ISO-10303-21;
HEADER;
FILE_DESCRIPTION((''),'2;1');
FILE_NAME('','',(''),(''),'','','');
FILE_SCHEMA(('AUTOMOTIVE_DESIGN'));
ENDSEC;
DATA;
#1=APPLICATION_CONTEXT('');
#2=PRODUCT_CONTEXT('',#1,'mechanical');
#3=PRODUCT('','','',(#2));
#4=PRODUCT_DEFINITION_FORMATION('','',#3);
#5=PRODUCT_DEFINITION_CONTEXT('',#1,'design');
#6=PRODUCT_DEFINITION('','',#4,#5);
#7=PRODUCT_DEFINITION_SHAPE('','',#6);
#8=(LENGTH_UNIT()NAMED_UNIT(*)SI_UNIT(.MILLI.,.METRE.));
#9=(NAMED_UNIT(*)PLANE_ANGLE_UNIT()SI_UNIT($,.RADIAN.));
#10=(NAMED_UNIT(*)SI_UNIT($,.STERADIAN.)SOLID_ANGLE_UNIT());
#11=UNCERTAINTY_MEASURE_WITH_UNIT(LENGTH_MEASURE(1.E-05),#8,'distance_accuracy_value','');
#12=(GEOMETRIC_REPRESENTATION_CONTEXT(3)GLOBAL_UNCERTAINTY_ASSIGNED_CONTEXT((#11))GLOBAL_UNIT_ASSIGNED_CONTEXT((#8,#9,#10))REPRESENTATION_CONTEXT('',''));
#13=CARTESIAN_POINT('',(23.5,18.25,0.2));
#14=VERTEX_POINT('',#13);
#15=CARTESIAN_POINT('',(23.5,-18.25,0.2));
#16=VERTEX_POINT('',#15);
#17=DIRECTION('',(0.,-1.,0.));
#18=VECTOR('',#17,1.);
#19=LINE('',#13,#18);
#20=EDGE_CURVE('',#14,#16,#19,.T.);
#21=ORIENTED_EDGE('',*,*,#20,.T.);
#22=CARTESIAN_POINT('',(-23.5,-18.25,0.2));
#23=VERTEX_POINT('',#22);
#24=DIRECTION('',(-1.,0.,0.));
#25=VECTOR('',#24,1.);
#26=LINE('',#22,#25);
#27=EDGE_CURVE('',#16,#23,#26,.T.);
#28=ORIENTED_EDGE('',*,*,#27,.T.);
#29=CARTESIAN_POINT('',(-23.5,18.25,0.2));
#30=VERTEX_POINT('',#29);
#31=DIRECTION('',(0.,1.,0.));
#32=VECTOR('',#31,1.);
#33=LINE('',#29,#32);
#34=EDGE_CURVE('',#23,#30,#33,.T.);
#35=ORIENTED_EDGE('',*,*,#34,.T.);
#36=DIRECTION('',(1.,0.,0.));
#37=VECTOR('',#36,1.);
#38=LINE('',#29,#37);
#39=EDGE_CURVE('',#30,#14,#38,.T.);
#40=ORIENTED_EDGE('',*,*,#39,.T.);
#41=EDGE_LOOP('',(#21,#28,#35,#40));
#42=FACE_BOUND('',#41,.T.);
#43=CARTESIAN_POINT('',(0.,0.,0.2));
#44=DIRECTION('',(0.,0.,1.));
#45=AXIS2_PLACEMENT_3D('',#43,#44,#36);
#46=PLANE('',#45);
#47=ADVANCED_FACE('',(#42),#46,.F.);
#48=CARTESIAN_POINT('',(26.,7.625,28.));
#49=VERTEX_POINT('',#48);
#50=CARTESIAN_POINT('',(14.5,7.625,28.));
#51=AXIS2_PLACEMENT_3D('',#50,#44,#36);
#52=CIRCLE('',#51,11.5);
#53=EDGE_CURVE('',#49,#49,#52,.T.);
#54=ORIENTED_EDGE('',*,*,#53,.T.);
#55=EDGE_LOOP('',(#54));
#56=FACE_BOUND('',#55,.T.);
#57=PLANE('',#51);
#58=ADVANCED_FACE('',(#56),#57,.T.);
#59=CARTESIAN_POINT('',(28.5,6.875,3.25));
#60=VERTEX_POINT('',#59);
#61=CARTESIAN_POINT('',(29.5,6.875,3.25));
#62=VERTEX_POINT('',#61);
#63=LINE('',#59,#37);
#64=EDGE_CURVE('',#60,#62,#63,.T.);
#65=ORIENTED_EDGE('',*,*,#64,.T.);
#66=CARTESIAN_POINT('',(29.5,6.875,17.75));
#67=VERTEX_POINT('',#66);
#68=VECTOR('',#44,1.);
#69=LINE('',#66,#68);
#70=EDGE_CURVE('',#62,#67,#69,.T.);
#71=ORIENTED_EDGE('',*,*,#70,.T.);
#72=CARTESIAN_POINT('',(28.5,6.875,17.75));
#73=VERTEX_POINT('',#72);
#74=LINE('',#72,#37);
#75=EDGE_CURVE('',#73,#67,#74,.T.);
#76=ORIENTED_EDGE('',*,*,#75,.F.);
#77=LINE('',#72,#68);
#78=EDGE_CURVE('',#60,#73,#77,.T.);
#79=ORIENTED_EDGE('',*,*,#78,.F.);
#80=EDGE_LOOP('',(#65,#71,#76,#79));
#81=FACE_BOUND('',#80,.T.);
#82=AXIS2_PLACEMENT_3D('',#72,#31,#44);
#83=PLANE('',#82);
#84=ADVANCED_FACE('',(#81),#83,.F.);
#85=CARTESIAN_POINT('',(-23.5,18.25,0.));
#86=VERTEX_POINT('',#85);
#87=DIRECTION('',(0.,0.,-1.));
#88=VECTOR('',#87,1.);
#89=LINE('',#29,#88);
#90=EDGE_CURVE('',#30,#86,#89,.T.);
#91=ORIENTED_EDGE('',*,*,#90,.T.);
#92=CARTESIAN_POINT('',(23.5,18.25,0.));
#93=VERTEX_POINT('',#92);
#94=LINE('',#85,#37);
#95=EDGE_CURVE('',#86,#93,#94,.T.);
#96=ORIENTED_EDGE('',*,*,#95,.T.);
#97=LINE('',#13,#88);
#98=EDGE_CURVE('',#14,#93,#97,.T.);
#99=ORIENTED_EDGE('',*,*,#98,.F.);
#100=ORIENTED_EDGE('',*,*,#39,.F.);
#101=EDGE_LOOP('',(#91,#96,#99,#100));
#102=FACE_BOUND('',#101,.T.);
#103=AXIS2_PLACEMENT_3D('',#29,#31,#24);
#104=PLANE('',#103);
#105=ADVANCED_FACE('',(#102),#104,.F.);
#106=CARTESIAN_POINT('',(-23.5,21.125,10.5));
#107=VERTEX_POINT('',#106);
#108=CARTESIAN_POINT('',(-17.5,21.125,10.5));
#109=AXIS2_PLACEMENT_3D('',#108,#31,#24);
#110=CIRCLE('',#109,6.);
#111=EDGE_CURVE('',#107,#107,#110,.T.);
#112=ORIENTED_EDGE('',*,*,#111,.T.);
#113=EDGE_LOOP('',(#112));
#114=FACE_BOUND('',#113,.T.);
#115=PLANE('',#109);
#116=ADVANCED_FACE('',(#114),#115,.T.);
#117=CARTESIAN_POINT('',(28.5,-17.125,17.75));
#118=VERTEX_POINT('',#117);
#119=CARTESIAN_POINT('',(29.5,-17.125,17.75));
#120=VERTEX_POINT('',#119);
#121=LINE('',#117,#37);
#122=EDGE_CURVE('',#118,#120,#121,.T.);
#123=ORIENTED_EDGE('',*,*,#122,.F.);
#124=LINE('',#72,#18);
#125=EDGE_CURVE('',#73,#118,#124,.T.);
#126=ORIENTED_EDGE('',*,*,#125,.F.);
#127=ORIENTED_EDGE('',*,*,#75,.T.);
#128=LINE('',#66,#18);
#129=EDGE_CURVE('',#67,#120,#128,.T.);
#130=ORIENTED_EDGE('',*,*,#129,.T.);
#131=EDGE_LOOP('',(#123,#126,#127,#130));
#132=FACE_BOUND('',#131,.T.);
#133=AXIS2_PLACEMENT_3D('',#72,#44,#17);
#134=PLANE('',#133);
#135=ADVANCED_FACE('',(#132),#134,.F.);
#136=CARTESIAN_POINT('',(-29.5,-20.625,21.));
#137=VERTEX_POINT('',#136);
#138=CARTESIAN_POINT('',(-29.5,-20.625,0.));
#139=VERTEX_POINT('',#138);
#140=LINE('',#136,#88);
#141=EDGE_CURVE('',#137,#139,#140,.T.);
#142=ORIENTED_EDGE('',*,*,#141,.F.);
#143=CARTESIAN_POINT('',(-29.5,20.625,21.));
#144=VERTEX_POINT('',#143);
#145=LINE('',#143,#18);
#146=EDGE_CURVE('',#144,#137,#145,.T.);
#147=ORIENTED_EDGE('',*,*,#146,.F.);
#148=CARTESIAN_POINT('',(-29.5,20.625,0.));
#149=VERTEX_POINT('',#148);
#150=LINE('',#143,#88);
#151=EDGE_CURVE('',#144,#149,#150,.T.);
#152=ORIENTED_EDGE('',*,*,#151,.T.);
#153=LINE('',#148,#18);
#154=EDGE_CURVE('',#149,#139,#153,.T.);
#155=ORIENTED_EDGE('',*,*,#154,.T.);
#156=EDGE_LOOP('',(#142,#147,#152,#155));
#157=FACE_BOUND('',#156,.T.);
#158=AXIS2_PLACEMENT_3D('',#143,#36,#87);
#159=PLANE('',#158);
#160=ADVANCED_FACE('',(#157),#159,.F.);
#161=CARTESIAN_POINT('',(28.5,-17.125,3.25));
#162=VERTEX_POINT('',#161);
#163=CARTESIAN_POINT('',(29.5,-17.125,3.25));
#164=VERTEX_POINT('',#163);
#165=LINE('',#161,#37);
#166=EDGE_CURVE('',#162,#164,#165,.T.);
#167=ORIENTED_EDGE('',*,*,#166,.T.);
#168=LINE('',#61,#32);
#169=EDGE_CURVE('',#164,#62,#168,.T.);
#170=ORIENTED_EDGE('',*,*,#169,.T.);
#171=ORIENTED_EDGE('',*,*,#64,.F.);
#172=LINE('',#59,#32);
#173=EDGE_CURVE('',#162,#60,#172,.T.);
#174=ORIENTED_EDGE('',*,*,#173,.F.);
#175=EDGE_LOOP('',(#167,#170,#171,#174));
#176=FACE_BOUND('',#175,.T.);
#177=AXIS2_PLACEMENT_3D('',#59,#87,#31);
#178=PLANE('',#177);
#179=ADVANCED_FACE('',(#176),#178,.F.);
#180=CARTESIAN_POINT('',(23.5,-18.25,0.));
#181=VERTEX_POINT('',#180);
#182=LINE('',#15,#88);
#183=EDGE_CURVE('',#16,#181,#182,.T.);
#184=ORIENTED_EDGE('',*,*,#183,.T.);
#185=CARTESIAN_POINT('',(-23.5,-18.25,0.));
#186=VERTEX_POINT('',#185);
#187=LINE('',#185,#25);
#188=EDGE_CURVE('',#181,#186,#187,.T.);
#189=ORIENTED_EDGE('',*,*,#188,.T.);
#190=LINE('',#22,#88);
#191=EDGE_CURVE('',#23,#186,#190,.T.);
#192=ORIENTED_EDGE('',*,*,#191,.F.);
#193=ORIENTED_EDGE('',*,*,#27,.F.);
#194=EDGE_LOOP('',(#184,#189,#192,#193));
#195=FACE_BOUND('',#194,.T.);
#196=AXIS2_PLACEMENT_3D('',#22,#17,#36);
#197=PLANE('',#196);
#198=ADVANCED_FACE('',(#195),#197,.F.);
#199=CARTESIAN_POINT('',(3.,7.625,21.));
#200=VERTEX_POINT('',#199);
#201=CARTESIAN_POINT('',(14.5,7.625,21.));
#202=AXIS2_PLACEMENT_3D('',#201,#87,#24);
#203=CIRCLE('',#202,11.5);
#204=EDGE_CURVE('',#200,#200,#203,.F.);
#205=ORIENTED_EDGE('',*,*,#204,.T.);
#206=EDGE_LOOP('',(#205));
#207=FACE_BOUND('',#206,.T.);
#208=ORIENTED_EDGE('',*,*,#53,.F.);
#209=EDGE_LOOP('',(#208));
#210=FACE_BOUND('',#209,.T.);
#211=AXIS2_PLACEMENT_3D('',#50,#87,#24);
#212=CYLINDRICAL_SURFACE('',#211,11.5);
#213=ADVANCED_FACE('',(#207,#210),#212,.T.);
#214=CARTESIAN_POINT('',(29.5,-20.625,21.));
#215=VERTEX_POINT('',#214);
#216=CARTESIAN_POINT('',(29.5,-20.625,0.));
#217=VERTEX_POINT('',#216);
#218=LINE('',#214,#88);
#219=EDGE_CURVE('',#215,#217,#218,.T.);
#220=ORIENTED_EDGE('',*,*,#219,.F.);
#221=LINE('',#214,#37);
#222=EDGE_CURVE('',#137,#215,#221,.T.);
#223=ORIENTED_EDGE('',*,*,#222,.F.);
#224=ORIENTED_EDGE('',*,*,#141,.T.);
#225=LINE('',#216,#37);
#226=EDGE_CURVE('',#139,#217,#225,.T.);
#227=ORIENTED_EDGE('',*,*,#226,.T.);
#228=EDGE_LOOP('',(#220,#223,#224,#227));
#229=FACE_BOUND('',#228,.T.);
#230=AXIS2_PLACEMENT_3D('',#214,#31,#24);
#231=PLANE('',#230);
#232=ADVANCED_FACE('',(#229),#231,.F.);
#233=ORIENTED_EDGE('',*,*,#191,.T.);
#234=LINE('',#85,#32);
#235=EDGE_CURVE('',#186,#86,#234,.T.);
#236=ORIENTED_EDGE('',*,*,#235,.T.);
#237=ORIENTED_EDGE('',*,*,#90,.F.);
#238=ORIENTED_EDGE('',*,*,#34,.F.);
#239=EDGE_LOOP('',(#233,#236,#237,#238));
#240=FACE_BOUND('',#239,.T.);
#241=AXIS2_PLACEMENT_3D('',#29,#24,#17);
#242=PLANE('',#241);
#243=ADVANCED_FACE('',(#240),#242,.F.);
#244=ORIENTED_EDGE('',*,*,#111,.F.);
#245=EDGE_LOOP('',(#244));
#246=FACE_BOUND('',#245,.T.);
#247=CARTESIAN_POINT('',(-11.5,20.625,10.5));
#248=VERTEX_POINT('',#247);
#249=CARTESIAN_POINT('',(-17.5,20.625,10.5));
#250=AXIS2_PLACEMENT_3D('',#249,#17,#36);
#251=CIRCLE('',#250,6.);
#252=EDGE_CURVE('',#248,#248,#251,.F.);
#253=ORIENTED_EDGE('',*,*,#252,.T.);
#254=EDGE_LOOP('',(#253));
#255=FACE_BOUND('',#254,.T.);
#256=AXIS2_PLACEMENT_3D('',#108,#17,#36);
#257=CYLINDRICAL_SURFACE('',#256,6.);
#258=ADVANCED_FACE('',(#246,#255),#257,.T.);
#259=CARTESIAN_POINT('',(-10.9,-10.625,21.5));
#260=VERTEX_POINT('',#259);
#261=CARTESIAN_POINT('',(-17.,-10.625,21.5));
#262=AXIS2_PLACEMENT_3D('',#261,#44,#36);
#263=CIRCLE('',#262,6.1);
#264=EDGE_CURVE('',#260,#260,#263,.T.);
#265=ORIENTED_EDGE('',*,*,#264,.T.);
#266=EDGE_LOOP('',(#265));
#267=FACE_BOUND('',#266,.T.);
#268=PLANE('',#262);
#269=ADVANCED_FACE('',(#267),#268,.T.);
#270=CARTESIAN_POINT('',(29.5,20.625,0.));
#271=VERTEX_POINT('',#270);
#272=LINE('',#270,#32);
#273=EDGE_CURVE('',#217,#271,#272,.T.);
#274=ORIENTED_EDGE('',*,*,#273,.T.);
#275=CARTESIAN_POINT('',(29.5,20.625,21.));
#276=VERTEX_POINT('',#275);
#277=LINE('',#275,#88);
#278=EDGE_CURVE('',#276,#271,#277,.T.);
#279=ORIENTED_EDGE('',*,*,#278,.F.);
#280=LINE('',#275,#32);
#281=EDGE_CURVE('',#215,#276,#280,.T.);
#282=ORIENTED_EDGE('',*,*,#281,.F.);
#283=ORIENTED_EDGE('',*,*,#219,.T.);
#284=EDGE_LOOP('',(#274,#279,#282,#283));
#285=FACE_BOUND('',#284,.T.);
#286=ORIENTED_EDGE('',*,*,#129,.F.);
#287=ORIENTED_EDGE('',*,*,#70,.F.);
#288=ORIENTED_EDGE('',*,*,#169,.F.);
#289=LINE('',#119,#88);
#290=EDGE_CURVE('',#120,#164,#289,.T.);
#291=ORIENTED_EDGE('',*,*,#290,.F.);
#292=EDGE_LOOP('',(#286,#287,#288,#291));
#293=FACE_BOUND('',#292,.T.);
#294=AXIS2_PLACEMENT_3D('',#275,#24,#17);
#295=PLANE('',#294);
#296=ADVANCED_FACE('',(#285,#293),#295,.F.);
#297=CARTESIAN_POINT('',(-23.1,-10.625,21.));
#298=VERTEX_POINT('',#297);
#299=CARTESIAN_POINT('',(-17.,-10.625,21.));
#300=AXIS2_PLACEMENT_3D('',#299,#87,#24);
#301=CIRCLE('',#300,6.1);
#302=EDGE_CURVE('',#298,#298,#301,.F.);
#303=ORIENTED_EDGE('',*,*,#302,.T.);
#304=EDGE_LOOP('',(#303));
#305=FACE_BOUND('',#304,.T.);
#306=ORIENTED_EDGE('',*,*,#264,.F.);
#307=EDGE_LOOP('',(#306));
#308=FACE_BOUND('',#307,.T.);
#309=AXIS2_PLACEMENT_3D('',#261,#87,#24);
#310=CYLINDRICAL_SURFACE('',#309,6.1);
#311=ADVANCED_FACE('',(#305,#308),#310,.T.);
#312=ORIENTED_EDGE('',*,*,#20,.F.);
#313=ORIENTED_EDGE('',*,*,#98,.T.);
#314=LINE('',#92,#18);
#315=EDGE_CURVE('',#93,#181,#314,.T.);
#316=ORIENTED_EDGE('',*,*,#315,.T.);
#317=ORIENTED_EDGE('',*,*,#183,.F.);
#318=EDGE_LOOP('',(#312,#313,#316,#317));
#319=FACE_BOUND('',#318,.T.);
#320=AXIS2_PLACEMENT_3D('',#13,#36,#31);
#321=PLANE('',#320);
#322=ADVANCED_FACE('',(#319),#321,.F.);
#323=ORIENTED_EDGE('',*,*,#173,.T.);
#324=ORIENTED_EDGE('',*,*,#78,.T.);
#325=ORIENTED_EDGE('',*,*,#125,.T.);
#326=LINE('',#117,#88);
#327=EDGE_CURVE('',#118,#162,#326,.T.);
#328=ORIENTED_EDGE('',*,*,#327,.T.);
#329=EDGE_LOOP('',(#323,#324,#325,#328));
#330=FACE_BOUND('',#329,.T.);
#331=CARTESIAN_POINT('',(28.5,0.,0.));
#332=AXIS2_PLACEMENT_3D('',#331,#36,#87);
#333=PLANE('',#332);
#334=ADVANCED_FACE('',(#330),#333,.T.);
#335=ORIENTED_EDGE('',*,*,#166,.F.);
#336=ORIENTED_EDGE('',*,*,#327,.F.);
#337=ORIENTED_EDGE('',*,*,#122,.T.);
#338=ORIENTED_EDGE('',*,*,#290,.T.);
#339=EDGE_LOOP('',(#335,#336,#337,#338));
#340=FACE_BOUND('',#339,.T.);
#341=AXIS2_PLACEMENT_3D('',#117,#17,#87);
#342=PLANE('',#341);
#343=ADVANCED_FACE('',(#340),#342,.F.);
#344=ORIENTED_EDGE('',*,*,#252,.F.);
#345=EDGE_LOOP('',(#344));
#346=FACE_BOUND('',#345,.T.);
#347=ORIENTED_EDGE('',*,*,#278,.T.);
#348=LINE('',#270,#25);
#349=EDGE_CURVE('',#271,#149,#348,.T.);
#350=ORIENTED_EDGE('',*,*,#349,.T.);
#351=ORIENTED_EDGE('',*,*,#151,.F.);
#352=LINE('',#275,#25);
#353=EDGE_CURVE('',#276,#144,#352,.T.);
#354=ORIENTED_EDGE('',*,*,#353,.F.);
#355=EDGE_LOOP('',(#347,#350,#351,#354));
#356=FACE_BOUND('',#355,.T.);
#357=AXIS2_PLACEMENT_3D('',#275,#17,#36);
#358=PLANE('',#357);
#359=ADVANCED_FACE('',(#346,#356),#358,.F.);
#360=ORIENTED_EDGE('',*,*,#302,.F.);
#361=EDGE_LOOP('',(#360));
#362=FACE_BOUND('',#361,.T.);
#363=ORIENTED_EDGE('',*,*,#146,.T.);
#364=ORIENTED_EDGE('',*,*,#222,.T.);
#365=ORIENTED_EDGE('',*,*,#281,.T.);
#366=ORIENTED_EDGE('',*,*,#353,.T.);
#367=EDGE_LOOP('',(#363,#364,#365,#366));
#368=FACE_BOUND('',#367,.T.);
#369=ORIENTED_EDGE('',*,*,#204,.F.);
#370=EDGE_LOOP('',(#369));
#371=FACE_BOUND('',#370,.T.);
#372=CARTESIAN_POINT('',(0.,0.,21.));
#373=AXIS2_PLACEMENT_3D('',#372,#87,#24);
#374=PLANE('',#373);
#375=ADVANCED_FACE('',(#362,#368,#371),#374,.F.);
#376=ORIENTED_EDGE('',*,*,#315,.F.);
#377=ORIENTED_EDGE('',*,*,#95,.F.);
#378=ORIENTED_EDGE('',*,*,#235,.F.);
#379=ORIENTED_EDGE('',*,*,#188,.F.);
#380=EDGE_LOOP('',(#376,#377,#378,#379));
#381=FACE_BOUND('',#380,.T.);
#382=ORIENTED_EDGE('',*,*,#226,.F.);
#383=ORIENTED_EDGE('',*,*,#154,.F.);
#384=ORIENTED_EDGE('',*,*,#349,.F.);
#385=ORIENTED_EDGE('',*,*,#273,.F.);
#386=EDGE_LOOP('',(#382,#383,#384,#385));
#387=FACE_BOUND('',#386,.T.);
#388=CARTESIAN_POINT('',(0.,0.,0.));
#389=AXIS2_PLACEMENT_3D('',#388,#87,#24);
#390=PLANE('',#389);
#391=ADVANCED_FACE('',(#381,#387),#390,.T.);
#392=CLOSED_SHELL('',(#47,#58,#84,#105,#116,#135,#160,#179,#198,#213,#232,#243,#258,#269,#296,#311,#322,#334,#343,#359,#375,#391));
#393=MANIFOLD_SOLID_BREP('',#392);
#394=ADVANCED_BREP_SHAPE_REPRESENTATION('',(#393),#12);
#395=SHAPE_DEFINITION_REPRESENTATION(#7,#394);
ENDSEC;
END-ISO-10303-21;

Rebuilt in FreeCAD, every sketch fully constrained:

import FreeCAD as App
import Part
import Sketcher

V = App.Vector
Q = App.Units.Quantity


def add_polygon(sketch, points):
    """Adds a closed chain of lines whose ends are joined by coincident constraints."""
    first, n = sketch.GeometryCount, len(points)
    for a, b in zip(points, points[1:] + points[:1]):
        sketch.addGeometry(Part.LineSegment(App.Vector(*a, 0), App.Vector(*b, 0)), False)
    for i in range(n):
        sketch.addConstraint(Sketcher.Constraint("Coincident", first + i, 2, first + (i + 1) % n, 1))

doc = App.newDocument("Part")
body = doc.addObject("PartDesign::Body", "Body")

# Sketch on XY plane
sketch1 = body.newObject("Sketcher::SketchObject", "Sketch")
sketch1.AttachmentSupport = (doc.getObject("XY_Plane"), [""])
sketch1.MapMode = "FlatFace"
add_polygon(sketch1, [(-30, 21), (-30, -21), (30, -21), (30, 21)])  # lines 0-3
sketch1.addConstraint([
    Sketcher.Constraint("Vertical", 0),
    Sketcher.Constraint("Horizontal", 1),
    Sketcher.Constraint("Vertical", 2),
    Sketcher.Constraint("Horizontal", 3),
    Sketcher.Constraint("Symmetric", 0, 2, 2, 2, -1, 1),
    Sketcher.Constraint("DistanceX", 1, 1, 1, 2, Q("59 mm")),
    Sketcher.Constraint("DistanceY", 0, 2, 0, 1, Q("41.25 mm")),
])
pad1 = body.newObject("PartDesign::Pad", "Pad")
pad1.Profile = sketch1
pad1.Length = 21

# Sketch on XY plane
sketch2 = body.newObject("Sketcher::SketchObject", "Sketch001")
sketch2.AttachmentSupport = (doc.getObject("XY_Plane"), [""])
sketch2.MapMode = "FlatFace"
sketch2.AttachmentOffset = App.Placement(V(0, 0, 21), App.Rotation())
sketch2.addGeometry(Part.Circle(V(14, 8, 0), V(0, 0, 1), 12), False)
sketch2.addConstraint([
    Sketcher.Constraint("Diameter", 0, Q("23 mm")),
    Sketcher.Constraint("DistanceX", -1, 1, 0, 3, Q("14.5 mm")),
    Sketcher.Constraint("DistanceY", -1, 1, 0, 3, Q("7.625 mm")),
])
pad2 = body.newObject("PartDesign::Pad", "Pad001")
pad2.Profile = sketch2
pad2.Length = 7

# Sketch on XY plane
sketch3 = body.newObject("Sketcher::SketchObject", "Sketch002")
sketch3.AttachmentSupport = (doc.getObject("XY_Plane"), [""])
sketch3.MapMode = "FlatFace"
sketch3.AttachmentOffset = App.Placement(V(0, 0, 21), App.Rotation())
sketch3.addGeometry(Part.Circle(V(-17, -11, 0), V(0, 0, 1), 6), False)
sketch3.addConstraint([
    Sketcher.Constraint("Diameter", 0, Q("12.2 mm")),
    Sketcher.Constraint("DistanceX", 0, 3, -1, 1, Q("17 mm")),
    Sketcher.Constraint("DistanceY", 0, 3, -1, 1, Q("10.625 mm")),
])
pad3 = body.newObject("PartDesign::Pad", "Pad002")
pad3.Profile = sketch3
pad3.Length = 0.5

# Sketch on YZ plane
sketch4 = body.newObject("Sketcher::SketchObject", "Sketch003")
sketch4.AttachmentSupport = (doc.getObject("YZ_Plane"), [""])
sketch4.MapMode = "FlatFace"
sketch4.AttachmentOffset = App.Placement(V(0, 0, 29.5), App.Rotation())
add_polygon(sketch4, [(7, 18), (-17, 18), (-17, 3), (7, 3)])  # lines 0-3
sketch4.addConstraint([
    Sketcher.Constraint("Horizontal", 0),
    Sketcher.Constraint("Vertical", 1),
    Sketcher.Constraint("Horizontal", 2),
    Sketcher.Constraint("Vertical", 3),
    Sketcher.Constraint("DistanceX", 0, 2, 0, 1, Q("24 mm")),
    Sketcher.Constraint("DistanceY", 1, 2, 1, 1, Q("14.5 mm")),
    Sketcher.Constraint("DistanceY", -1, 1, 0, 2, Q("17.75 mm")),
    Sketcher.Constraint("DistanceX", 0, 2, -1, 1, Q("17.125 mm")),
])
pocket1 = body.newObject("PartDesign::Pocket", "Pocket")
pocket1.Profile = sketch4
pocket1.Length = 1

# Sketch on XY plane
sketch5 = body.newObject("Sketcher::SketchObject", "Sketch004")
sketch5.AttachmentSupport = (doc.getObject("XY_Plane"), [""])
sketch5.MapMode = "FlatFace"
add_polygon(sketch5, [(24, 18), (24, -18), (-24, -18), (-24, 18)])  # lines 0-3
sketch5.addConstraint([
    Sketcher.Constraint("Vertical", 0),
    Sketcher.Constraint("Horizontal", 1),
    Sketcher.Constraint("Vertical", 2),
    Sketcher.Constraint("Horizontal", 3),
    Sketcher.Constraint("Symmetric", 0, 2, 2, 2, -1, 1),
    Sketcher.Constraint("DistanceX", 1, 2, 1, 1, Q("47 mm")),
    Sketcher.Constraint("DistanceY", 0, 2, 0, 1, Q("36.5 mm")),
])
pocket2 = body.newObject("PartDesign::Pocket", "Pocket001")
pocket2.Profile = sketch5
pocket2.Length = 0.2
pocket2.Reversed = True

# Sketch on XZ plane
sketch6 = body.newObject("Sketcher::SketchObject", "Sketch005")
sketch6.AttachmentSupport = (doc.getObject("XZ_Plane"), [""])
sketch6.MapMode = "FlatFace"
sketch6.AttachmentOffset = App.Placement(V(0, 0, -20.625), App.Rotation())
sketch6.addGeometry(Part.Circle(V(-18, 10, 0), V(0, 0, 1), 6), False)
sketch6.addConstraint([
    Sketcher.Constraint("Diameter", 0, Q("12 mm")),
    Sketcher.Constraint("DistanceX", 0, 3, -1, 1, Q("17.5 mm")),
    Sketcher.Constraint("DistanceY", -1, 1, 0, 3, Q("10.5 mm")),
])
pad4 = body.newObject("PartDesign::Pad", "Pad003")
pad4.Profile = sketch6
pad4.Length = 0.5
pad4.Reversed = True

doc.recompute()
